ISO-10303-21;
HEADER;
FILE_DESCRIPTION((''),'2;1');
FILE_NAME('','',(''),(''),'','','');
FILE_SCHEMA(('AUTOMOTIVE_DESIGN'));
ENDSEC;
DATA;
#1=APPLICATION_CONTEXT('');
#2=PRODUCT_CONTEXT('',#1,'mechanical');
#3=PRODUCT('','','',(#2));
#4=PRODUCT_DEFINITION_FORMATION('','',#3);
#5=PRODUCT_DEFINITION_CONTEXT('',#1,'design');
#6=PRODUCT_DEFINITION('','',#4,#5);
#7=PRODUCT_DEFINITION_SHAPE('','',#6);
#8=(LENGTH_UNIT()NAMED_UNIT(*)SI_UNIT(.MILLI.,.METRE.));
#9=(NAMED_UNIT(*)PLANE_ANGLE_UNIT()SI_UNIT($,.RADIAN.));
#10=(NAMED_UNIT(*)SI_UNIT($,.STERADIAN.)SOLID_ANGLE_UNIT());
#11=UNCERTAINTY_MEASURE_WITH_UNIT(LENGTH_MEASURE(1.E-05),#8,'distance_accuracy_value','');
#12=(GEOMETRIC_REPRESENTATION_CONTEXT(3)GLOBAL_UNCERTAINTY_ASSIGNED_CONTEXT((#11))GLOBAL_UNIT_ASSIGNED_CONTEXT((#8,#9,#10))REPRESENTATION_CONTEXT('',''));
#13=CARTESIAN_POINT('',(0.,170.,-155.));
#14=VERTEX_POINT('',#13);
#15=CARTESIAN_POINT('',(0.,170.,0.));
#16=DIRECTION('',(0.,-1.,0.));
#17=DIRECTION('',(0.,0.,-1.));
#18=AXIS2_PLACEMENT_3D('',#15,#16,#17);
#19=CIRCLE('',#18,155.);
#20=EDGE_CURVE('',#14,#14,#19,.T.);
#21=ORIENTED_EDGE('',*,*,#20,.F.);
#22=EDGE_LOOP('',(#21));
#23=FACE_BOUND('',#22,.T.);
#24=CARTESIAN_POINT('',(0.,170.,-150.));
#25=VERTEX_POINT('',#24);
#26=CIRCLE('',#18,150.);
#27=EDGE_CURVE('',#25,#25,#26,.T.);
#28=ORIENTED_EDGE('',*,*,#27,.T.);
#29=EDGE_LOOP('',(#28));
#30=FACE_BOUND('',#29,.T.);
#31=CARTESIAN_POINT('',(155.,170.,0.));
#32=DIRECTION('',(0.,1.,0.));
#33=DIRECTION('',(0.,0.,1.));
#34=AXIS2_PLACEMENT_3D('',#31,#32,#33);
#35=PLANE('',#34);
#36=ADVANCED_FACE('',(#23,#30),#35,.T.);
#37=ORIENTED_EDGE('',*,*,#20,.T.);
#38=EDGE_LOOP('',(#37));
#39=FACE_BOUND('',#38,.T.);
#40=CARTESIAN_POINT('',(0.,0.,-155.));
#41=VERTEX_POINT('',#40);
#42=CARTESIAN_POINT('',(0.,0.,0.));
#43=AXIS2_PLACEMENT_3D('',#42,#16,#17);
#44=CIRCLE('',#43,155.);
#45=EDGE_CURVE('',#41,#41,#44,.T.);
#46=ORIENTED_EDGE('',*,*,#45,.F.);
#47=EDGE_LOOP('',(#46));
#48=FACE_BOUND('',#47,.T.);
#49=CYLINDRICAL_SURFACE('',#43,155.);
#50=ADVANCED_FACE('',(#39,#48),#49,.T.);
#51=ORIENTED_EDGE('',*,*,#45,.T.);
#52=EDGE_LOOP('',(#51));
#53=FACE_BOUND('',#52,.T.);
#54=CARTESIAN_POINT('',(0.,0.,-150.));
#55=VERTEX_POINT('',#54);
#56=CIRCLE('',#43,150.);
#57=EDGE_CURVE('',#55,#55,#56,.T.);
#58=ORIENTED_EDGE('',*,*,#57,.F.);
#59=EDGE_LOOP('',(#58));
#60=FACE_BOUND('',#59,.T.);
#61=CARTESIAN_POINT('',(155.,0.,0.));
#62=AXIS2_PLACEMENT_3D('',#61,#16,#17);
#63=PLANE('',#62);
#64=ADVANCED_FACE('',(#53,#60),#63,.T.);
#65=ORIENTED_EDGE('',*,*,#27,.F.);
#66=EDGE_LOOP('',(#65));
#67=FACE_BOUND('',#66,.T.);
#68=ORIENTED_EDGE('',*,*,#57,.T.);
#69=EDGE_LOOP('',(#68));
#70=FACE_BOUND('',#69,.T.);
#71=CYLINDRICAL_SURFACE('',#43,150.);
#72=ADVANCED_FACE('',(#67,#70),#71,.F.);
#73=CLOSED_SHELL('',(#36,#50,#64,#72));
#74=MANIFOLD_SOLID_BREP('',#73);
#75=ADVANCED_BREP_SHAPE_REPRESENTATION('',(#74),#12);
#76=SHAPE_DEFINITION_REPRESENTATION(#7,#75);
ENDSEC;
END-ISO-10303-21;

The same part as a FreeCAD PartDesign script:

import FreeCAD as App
import Part
import Sketcher


def add_polygon(sketch, points):
    """Adds a closed chain of lines whose ends are joined by coincident constraints."""
    first, n = sketch.GeometryCount, len(points)
    for a, b in zip(points, points[1:] + points[:1]):
        sketch.addGeometry(Part.LineSegment(App.Vector(*a, 0), App.Vector(*b, 0)), False)
    for i in range(n):
        sketch.addConstraint(Sketcher.Constraint("Coincident", first + i, 2, first + (i + 1) % n, 1))

doc = App.newDocument("Part")
params = doc.addObject("Spreadsheet::Sheet", "Params")
for row, (alias, value) in enumerate([
    ("sketch1_width", "5 mm"),
    ("sketch1_height", "170 mm"),
    ("revolution_angle", "360 deg"),
], start=1):
    params.set(f"A{row}", alias)
    params.set(f"B{row}", "=" + value)
    params.setAlias(f"B{row}", alias)

body = doc.addObject("PartDesign::Body", "Body")

sketch1 = body.newObject("Sketcher::SketchObject", "Sketch")
sketch1.AttachmentSupport = (doc.getObject("XY_Plane"), [""])
sketch1.MapMode = "FlatFace"
add_polygon(sketch1, [(150, 170), (150, 0), (155, 0), (155, 170)])
sketch1.addConstraint([
    Sketcher.Constraint("Vertical", 0),
    Sketcher.Constraint("Horizontal", 1),
    Sketcher.Constraint("Vertical", 2),
    Sketcher.Constraint("Horizontal", 3),
    Sketcher.Constraint("PointOnObject", 0, 2, -1),
    Sketcher.Constraint("DistanceX", 1, 1, 1, 2, 5.0),
    Sketcher.Constraint("DistanceY", 0, 2, 0, 1, 170.0),
    Sketcher.Constraint("DistanceX", -1, 1, 0, 2, 150.0),
])
sketch1.setExpression("Constraints[9]", "Params.sketch1_width")
sketch1.setExpression("Constraints[10]", "Params.sketch1_height")
revolution = body.newObject("PartDesign::Revolution", "Revolution")
revolution.Profile = sketch1
revolution.ReferenceAxis = (sketch1, ["V_Axis"])
revolution.setExpression("Angle", "Params.revolution_angle")

doc.recompute()
